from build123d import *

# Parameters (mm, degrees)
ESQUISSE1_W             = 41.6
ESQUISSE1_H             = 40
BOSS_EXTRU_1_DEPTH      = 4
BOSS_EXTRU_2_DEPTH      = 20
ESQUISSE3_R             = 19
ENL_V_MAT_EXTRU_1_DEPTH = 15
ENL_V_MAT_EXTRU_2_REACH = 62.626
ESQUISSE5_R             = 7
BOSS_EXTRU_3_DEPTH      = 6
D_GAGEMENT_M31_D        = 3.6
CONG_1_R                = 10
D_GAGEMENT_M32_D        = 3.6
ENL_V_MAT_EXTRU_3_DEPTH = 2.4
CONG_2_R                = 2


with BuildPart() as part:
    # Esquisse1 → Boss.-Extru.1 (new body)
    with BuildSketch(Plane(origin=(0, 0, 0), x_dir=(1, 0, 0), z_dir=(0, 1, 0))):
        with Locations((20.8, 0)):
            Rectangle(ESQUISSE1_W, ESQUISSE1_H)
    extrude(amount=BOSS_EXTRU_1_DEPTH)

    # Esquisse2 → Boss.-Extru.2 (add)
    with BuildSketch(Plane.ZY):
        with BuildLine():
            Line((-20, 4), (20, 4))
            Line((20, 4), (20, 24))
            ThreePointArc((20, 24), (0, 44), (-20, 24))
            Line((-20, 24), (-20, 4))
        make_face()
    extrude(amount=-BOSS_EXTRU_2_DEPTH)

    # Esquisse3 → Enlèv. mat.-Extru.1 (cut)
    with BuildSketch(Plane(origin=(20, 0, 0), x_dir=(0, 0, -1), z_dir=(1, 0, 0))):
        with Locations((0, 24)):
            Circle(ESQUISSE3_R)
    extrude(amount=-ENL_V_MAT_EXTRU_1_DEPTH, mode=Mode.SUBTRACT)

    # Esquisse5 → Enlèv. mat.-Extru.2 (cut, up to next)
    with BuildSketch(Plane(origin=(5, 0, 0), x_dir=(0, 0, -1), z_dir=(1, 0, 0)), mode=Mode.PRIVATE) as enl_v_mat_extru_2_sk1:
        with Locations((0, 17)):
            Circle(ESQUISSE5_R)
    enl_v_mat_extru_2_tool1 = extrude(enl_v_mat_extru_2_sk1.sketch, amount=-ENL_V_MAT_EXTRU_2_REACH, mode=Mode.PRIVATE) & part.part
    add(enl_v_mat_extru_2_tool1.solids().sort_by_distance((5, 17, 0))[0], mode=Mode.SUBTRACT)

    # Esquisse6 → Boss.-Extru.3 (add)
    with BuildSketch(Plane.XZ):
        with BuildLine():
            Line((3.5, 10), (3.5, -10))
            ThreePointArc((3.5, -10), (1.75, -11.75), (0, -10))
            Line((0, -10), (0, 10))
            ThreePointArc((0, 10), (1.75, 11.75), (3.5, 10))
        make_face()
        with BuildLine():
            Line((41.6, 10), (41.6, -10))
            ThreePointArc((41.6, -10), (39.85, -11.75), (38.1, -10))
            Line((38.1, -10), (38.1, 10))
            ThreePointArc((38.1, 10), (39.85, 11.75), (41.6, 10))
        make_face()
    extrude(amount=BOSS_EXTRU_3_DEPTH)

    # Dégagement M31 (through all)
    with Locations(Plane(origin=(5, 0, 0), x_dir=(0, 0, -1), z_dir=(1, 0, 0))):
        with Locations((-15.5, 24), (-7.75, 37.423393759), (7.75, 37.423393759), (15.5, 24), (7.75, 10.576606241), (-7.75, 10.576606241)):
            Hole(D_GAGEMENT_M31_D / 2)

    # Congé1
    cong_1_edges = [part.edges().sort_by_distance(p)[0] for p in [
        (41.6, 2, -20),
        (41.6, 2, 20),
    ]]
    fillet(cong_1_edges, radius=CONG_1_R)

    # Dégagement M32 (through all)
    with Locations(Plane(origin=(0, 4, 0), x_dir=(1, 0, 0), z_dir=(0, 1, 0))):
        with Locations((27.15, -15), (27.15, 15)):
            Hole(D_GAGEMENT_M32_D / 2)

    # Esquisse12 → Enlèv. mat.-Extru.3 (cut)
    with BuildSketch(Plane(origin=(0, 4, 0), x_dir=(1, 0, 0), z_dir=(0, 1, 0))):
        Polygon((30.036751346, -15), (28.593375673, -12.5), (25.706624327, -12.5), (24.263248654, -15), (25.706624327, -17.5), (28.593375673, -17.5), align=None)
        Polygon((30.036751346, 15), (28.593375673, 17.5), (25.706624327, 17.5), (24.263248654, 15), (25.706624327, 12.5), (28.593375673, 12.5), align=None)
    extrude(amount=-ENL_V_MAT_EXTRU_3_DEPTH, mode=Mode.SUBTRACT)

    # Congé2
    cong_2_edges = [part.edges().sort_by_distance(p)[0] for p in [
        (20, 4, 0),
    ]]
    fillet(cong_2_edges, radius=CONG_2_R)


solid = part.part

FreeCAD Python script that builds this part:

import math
import FreeCAD as App
import Part
import Sketcher
from FreeCAD import Vector
Q = App.Units.Quantity


def edges_at(feature, points):
    """Names of the edges that pass closest to the given points."""
    edges = feature.Shape.Edges
    near = lambda p: min(range(len(edges)), key=lambda i: edges[i].distToShape(Part.Vertex(*p))[0])
    return sorted({f"Edge{near(p) + 1}" for p in points})

doc = App.newDocument("Part")
params = doc.addObject("Spreadsheet::Sheet", "Params")
for row, (alias, value) in enumerate([
    ("sketch1_height", "40 mm"),
    ("sketch1_width", "41.6 mm"),
    ("pad1_length", "4 mm"),
    ("sketch2_radius", "20 mm"),
    ("sketch2_width", "20 mm"),
    ("pad2_length", "20 mm"),
    ("sketch3_diameter", "38 mm"),
    ("pocket1_length", "15 mm"),
    ("sketch4_diameter", "14 mm"),
    ("sketch5_height", "20 mm"),
    ("sketch5_radius", "1.75 mm"),
    ("pad3_length", "6 mm"),
    ("sketch6_diameter", "3.6 mm"),
    ("hole_diameter", "3.6 mm"),
    ("fillet_radius", "10 mm"),
    ("sketch7_diameter", "3.6 mm"),
    ("hole2_diameter", "3.6 mm"),
    ("pocket3_length", "2.4 mm"),
    ("fillet2_radius", "2 mm"),
], start=1):
    params.set(f"A{row}", alias)
    params.set(f"B{row}", "=" + value)
    params.setAlias(f"B{row}", alias)

body = doc.addObject("PartDesign::Body", "Body")

sketch1 = body.newObject("Sketcher::SketchObject", "Sketch")
sketch1.AttachmentSupport = (doc.getObject("XZ_Plane"), [""])
sketch1.MapMode = "FlatFace"
sketch1.addGeometry(Part.LineSegment(Vector(0, -20, 0), Vector(0, 20, 0)), False)
sketch1.addGeometry(Part.LineSegment(Vector(0, 20, 0), Vector(42, 20, 0)), False)
sketch1.addGeometry(Part.LineSegment(Vector(42, 20, 0), Vector(42, -20, 0)), False)
sketch1.addGeometry(Part.LineSegment(Vector(42, -20, 0), Vector(0, -20, 0)), False)
sketch1.addConstraint(Sketcher.Constraint("Coincident", 0, 2, 1, 1))
sketch1.addConstraint(Sketcher.Constraint("Coincident", 1, 2, 2, 1))
sketch1.addConstraint(Sketcher.Constraint("Coincident", 2, 2, 3, 1))
sketch1.addConstraint(Sketcher.Constraint("Coincident", 3, 2, 0, 1))
sketch1.addConstraint(Sketcher.Constraint("Vertical", 0))
sketch1.addConstraint(Sketcher.Constraint("Horizontal", 1))
sketch1.addConstraint(Sketcher.Constraint("Vertical", 2))
sketch1.addConstraint(Sketcher.Constraint("Horizontal", 3))
sketch1.addConstraint(Sketcher.Constraint("Symmetric", 0, 2, 3, 2, -1, 1))
sketch1.addConstraint(Sketcher.Constraint("DistanceY", 0, 1, 0, 2, 40.0))
sketch1.addConstraint(Sketcher.Constraint("DistanceX", 1, 1, 1, 2, 41.6))
sketch1.setExpression("Constraints[9]", "Params.sketch1_height")
sketch1.setExpression("Constraints[10]", "Params.sketch1_width")
pad1 = body.newObject("PartDesign::Pad", "Pad")
pad1.Profile = sketch1
pad1.setExpression("Length", "Params.pad1_length")
pad1.Reversed = True

sketch2 = body.newObject("Sketcher::SketchObject", "Sketch001")
sketch2.AttachmentSupport = (doc.getObject("YZ_Plane"), [""])
sketch2.MapMode = "FlatFace"
sketch2.addGeometry(Part.LineSegment(Vector(4, -20, 0), Vector(4, 20, 0)), False)
sketch2.addGeometry(Part.LineSegment(Vector(4, 20, 0), Vector(24, 20, 0)), False)
sketch2.addGeometry(Part.ArcOfCircle(Part.Circle(Vector(24, 0, 0), Vector(0, 0, 1), 20), math.radians(-90), math.radians(90)), False)
sketch2.addGeometry(Part.LineSegment(Vector(24, -20, 0), Vector(4, -20, 0)), False)
sketch2.addConstraint(Sketcher.Constraint("Coincident", 0, 2, 1, 1))
sketch2.addConstraint(Sketcher.Constraint("Tangent", 1, 2, 2, 2))
sketch2.addConstraint(Sketcher.Constraint("Tangent", 2, 1, 3, 1))
sketch2.addConstraint(Sketcher.Constraint("Coincident", 3, 2, 0, 1))
sketch2.addConstraint(Sketcher.Constraint("Vertical", 0))
sketch2.addConstraint(Sketcher.Constraint("Horizontal", 1))
sketch2.addConstraint(Sketcher.Constraint("Horizontal", 3))
sketch2.addConstraint(Sketcher.Constraint("PointOnObject", 2, 3, -1))
sketch2.addConstraint(Sketcher.Constraint("Radius", 2, 20.0))
sketch2.addConstraint(Sketcher.Constraint("DistanceX", 1, 1, 1, 2, 20.0))
sketch2.addConstraint(Sketcher.Constraint("DistanceX", -1, 1, 2, 3, 24.0))
sketch2.setExpression("Constraints[8]", "Params.sketch2_radius")
sketch2.setExpression("Constraints[9]", "Params.sketch2_width")
pad2 = body.newObject("PartDesign::Pad", "Pad001")
pad2.Profile = sketch2
pad2.setExpression("Length", "Params.pad2_length")

sketch3 = body.newObject("Sketcher::SketchObject", "Sketch002")
sketch3.AttachmentSupport = (doc.getObject("YZ_Plane"), [""])
sketch3.MapMode = "FlatFace"
sketch3.AttachmentOffset = App.Placement(Vector(0, 0, 20), App.Rotation())
sketch3.addGeometry(Part.Circle(Vector(24, 0, 0), Vector(0, 0, 1), 19), False)
sketch3.addConstraint(Sketcher.Constraint("PointOnObject", 0, 3, -1))
sketch3.addConstraint(Sketcher.Constraint("Diameter", 0, 38.0))
sketch3.addConstraint(Sketcher.Constraint("DistanceX", -1, 1, 0, 3, 24.0))
sketch3.setExpression("Constraints[1]", "Params.sketch3_diameter")
pocket1 = body.newObject("PartDesign::Pocket", "Pocket")
pocket1.Profile = sketch3
pocket1.setExpression("Length", "Params.pocket1_length")

sketch4 = body.newObject("Sketcher::SketchObject", "Sketch003")
sketch4.AttachmentSupport = (doc.getObject("YZ_Plane"), [""])
sketch4.MapMode = "FlatFace"
sketch4.AttachmentOffset = App.Placement(Vector(0, 0, 5), App.Rotation())
sketch4.addGeometry(Part.Circle(Vector(17, 0, 0), Vector(0, 0, 1), 7), False)
sketch4.addConstraint(Sketcher.Constraint("PointOnObject", 0, 3, -1))
sketch4.addConstraint(Sketcher.Constraint("Diameter", 0, 14.0))
sketch4.addConstraint(Sketcher.Constraint("DistanceX", -1, 1, 0, 3, 17.0))
sketch4.setExpression("Constraints[1]", "Params.sketch4_diameter")
pocket2 = body.newObject("PartDesign::Pocket", "Pocket001")
pocket2.Profile = sketch4
pocket2.Type = "UpToFirst"

sketch5 = body.newObject("Sketcher::SketchObject", "Sketch004")
sketch5.AttachmentSupport = (doc.getObject("XZ_Plane"), [""])
sketch5.MapMode = "FlatFace"
sketch5.addGeometry(Part.LineSegment(Vector(3.5, -10, 0), Vector(3.5, 10, 0)), False)
sketch5.addGeometry(Part.ArcOfCircle(Part.Circle(Vector(1.8, 10, 0), Vector(0, 0, 1), 1.8), math.radians(0), math.radians(180)), False)
sketch5.addGeometry(Part.LineSegment(Vector(0, 10, 0), Vector(0, -10, 0)), False)
sketch5.addGeometry(Part.ArcOfCircle(Part.Circle(Vector(1.8, -10, 0), Vector(0, 0, 1), 1.8), math.radians(180), math.radians(360)), False)
sketch5.addGeometry(Part.LineSegment(Vector(41.6, -10, 0), Vector(41.6, 10, 0)), False)
sketch5.addGeometry(Part.ArcOfCircle(Part.Circle(Vector(39.9, 10, 0), Vector(0, 0, 1), 1.8), math.radians(0), math.radians(180)), False)
sketch5.addGeometry(Part.LineSegment(Vector(38.1, 10, 0), Vector(38.1, -10, 0)), False)
sketch5.addGeometry(Part.ArcOfCircle(Part.Circle(Vector(39.9, -10, 0), Vector(0, 0, 1), 1.8), math.radians(180), math.radians(360)), False)
sketch5.addConstraint(Sketcher.Constraint("Tangent", 0, 2, 1, 1))
sketch5.addConstraint(Sketcher.Constraint("Tangent", 1, 2, 2, 1))
sketch5.addConstraint(Sketcher.Constraint("Tangent", 2, 2, 3, 1))
sketch5.addConstraint(Sketcher.Constraint("Tangent", 3, 2, 0, 1))
sketch5.addConstraint(Sketcher.Constraint("Tangent", 4, 2, 5, 1))
sketch5.addConstraint(Sketcher.Constraint("Tangent", 5, 2, 6, 1))
sketch5.addConstraint(Sketcher.Constraint("Tangent", 6, 2, 7, 1))
sketch5.addConstraint(Sketcher.Constraint("Tangent", 7, 2, 4, 1))
sketch5.addConstraint(Sketcher.Constraint("Vertical", 0))
sketch5.addConstraint(Sketcher.Constraint("Vertical", 2))
sketch5.addConstraint(Sketcher.Constraint("Vertical", 4))
sketch5.addConstraint(Sketcher.Constraint("Vertical", 6))
sketch5.addConstraint(Sketcher.Constraint("Equal", 3, 5))
sketch5.addConstraint(Sketcher.Constraint("Symmetric", 1, 2, 2, 2, -1, 1))
sketch5.addConstraint(Sketcher.Constraint("Horizontal", 1, 3, 5, 3))
sketch5.addConstraint(Sketcher.Constraint("Horizontal", 3, 3, 7, 3))
sketch5.addConstraint(Sketcher.Constraint("DistanceY", 0, 1, 0, 2, 20.0))
sketch5.addConstraint(Sketcher.Constraint("Radius", 1, 1.75))
sketch5.addConstraint(Sketcher.Constraint("DistanceX", -1, 1, 4, 2, 41.6))
sketch5.setExpression("Constraints[16]", "Params.sketch5_height")
sketch5.setExpression("Constraints[17]", "Params.sketch5_radius")
pad3 = body.newObject("PartDesign::Pad", "Pad002")
pad3.Profile = sketch5
pad3.setExpression("Length", "Params.pad3_length")

sketch6 = body.newObject("Sketcher::SketchObject", "Sketch005")
sketch6.AttachmentSupport = (doc.getObject("YZ_Plane"), [""])
sketch6.MapMode = "FlatFace"
sketch6.AttachmentOffset = App.Placement(Vector(0, 0, 5), App.Rotation())
sketch6.addGeometry(Part.Circle(Vector(24, 15.5, 0), Vector(0, 0, 1), 1.8), False)
sketch6.addGeometry(Part.Circle(Vector(37.4, 7.8, 0), Vector(0, 0, 1), 1.8), False)
sketch6.addGeometry(Part.Circle(Vector(37.4, -7.8, 0), Vector(0, 0, 1), 1.8), False)
sketch6.addGeometry(Part.Circle(Vector(24, -15.5, 0), Vector(0, 0, 1), 1.8), False)
sketch6.addGeometry(Part.Circle(Vector(10.6, -7.8, 0), Vector(0, 0, 1), 1.8), False)
sketch6.addGeometry(Part.Circle(Vector(10.6, 7.8, 0), Vector(0, 0, 1), 1.8), False)
sketch6.addConstraint(Sketcher.Constraint("Equal", 0, 1))
sketch6.addConstraint(Sketcher.Constraint("Equal", 1, 2))
sketch6.addConstraint(Sketcher.Constraint("Equal", 2, 3))
sketch6.addConstraint(Sketcher.Constraint("Equal", 3, 4))
sketch6.addConstraint(Sketcher.Constraint("Equal", 4, 5))
sketch6.addConstraint(Sketcher.Constraint("Symmetric", 1, 3, 2, 3, -1))
sketch6.addConstraint(Sketcher.Constraint("Symmetric", 0, 3, 3, 3, -1))
sketch6.addConstraint(Sketcher.Constraint("Symmetric", 4, 3, 5, 3, -1))
sketch6.addConstraint(Sketcher.Constraint("Horizontal", 2, 3, 4, 3))
sketch6.addConstraint(Sketcher.Constraint("Diameter", 0, 3.6))
sketch6.addConstraint(Sketcher.Constraint("DistanceX", -1, 1, 0, 3, 24.0))
sketch6.addConstraint(Sketcher.Constraint("DistanceY", 3, 3, 0, 3, 31.0))
sketch6.addConstraint(Sketcher.Constraint("DistanceY", 2, 3, 1, 3, 15.5))
sketch6.addConstraint(Sketcher.Constraint("DistanceX", -1, 1, 1, 3, 37.423394))
sketch6.addConstraint(Sketcher.Constraint("DistanceX", -1, 1, 4, 3, 10.576606))
sketch6.setExpression("Constraints[9]", "Params.sketch6_diameter")
doc.recompute()
hole = body.newObject("PartDesign::Hole", "Hole")
hole.Profile = sketch6
hole.ThreadType = "None"
hole.setExpression("Diameter", "Params.hole_diameter")
hole.DepthType = "ThroughAll"
doc.recompute()

fillet = body.newObject("PartDesign::Fillet", "Fillet")
fillet.Base = (hole, edges_at(hole, [(41.6, 2, -20), (41.6, 2, 20)]))
fillet.setExpression("Radius", "Params.fillet_radius")

sketch7 = body.newObject("Sketcher::SketchObject", "Sketch006")
sketch7.AttachmentSupport = (doc.getObject("XZ_Plane"), [""])
sketch7.MapMode = "FlatFace"
sketch7.AttachmentOffset = App.Placement(Vector(0, 0, -4), App.Rotation())
sketch7.addGeometry(Part.Circle(Vector(27.1, 15, 0), Vector(0, 0, 1), 1.8), False)
sketch7.addGeometry(Part.Circle(Vector(27.1, -15, 0), Vector(0, 0, 1), 1.8), False)
sketch7.addConstraint(Sketcher.Constraint("Equal", 0, 1))
sketch7.addConstraint(Sketcher.Constraint("Symmetric", 0, 3, 1, 3, -1))
sketch7.addConstraint(Sketcher.Constraint("Diameter", 0, 3.6))
sketch7.addConstraint(Sketcher.Constraint("DistanceY", -1, 1, 0, 3, 15.0))
sketch7.addConstraint(Sketcher.Constraint("DistanceX", -1, 1, 0, 3, 27.15))
sketch7.setExpression("Constraints[2]", "Params.sketch7_diameter")
doc.recompute()
hole2 = body.newObject("PartDesign::Hole", "Hole001")
hole2.Profile = sketch7
hole2.ThreadType = "None"
hole2.setExpression("Diameter", "Params.hole2_diameter")
hole2.DepthType = "ThroughAll"
hole2.Reversed = True

sketch8 = body.newObject("Sketcher::SketchObject", "Sketch007")
sketch8.AttachmentSupport = (doc.getObject("XZ_Plane"), [""])
sketch8.MapMode = "FlatFace"
sketch8.AttachmentOffset = App.Placement(Vector(0, 0, -4), App.Rotation())
sketch8.addGeometry(Part.LineSegment(Vector(30, 15, 0), Vector(28.6, 12.5, 0)), False)
sketch8.addGeometry(Part.LineSegment(Vector(28.6, 12.5, 0), Vector(25.7, 12.5, 0)), False)
sketch8.addGeometry(Part.LineSegment(Vector(25.7, 12.5, 0), Vector(24.3, 15, 0)), False)
sketch8.addGeometry(Part.LineSegment(Vector(24.3, 15, 0), Vector(25.7, 17.5, 0)), False)
sketch8.addGeometry(Part.LineSegment(Vector(25.7, 17.5, 0), Vector(28.6, 17.5, 0)), False)
sketch8.addGeometry(Part.LineSegment(Vector(28.6, 17.5, 0), Vector(30, 15, 0)), False)
sketch8.addGeometry(Part.LineSegment(Vector(30, -15, 0), Vector(28.6, -17.5, 0)), False)
sketch8.addGeometry(Part.LineSegment(Vector(28.6, -17.5, 0), Vector(25.7, -17.5, 0)), False)
sketch8.addGeometry(Part.LineSegment(Vector(25.7, -17.5, 0), Vector(24.3, -15, 0)), False)
sketch8.addGeometry(Part.LineSegment(Vector(24.3, -15, 0), Vector(25.7, -12.5, 0)), False)
sketch8.addGeometry(Part.LineSegment(Vector(25.7, -12.5, 0), Vector(28.6, -12.5, 0)), False)
sketch8.addGeometry(Part.LineSegment(Vector(28.6, -12.5, 0), Vector(30, -15, 0)), False)
sketch8.addConstraint(Sketcher.Constraint("Coincident", 0, 2, 1, 1))
sketch8.addConstraint(Sketcher.Constraint("Coincident", 1, 2, 2, 1))
sketch8.addConstraint(Sketcher.Constraint("Coincident", 2, 2, 3, 1))
sketch8.addConstraint(Sketcher.Constraint("Coincident", 3, 2, 4, 1))
sketch8.addConstraint(Sketcher.Constraint("Coincident", 4, 2, 5, 1))
sketch8.addConstraint(Sketcher.Constraint("Coincident", 5, 2, 0, 1))
sketch8.addConstraint(Sketcher.Constraint("Coincident", 6, 2, 7, 1))
sketch8.addConstraint(Sketcher.Constraint("Coincident", 7, 2, 8, 1))
sketch8.addConstraint(Sketcher.Constraint("Coincident", 8, 2, 9, 1))
sketch8.addConstraint(Sketcher.Constraint("Coincident", 9, 2, 10, 1))
sketch8.addConstraint(Sketcher.Constraint("Coincident", 10, 2, 11, 1))
sketch8.addConstraint(Sketcher.Constraint("Coincident", 11, 2, 6, 1))
sketch8.addConstraint(Sketcher.Constraint("Horizontal", 1))
sketch8.addConstraint(Sketcher.Constraint("Horizontal", 4))
sketch8.addConstraint(Sketcher.Constraint("Horizontal", 7))
sketch8.addConstraint(Sketcher.Constraint("Horizontal", 10))
sketch8.addConstraint(Sketcher.Constraint("Symmetric", 4, 2, 6, 2, -1))
sketch8.addConstraint(Sketcher.Constraint("Symmetric", 2, 2, 8, 2, -1))
sketch8.addConstraint(Sketcher.Constraint("Symmetric", 1, 2, 9, 2, -1))
sketch8.addConstraint(Sketcher.Constraint("Symmetric", 5, 2, 11, 2, -1))
sketch8.addConstraint(Sketcher.Constraint("Parallel", 0, 3))
sketch8.addConstraint(Sketcher.Constraint("Parallel", 2, 5))
sketch8.addConstraint(Sketcher.Constraint("Parallel", 3, 6))
sketch8.addConstraint(Sketcher.Constraint("Parallel", 5, 8))
sketch8.addConstraint(Sketcher.Constraint("Parallel", 8, 11))
sketch8.addConstraint(Sketcher.Constraint("Horizontal", 2, 2, 5, 2))
sketch8.addConstraint(Sketcher.Constraint("Vertical", 1, 2, 3, 2))
sketch8.addConstraint(Sketcher.Constraint("Angle", 0, Q("-120 deg")))
sketch8.addConstraint(Sketcher.Constraint("DistanceY", -1, 1, 2, 2, 15.0))
sketch8.addConstraint(Sketcher.Constraint("DistanceY", 1, 2, 3, 2, 5.0))
sketch8.addConstraint(Sketcher.Constraint("DistanceX", 1, 2, 1, 1, 2.886751))
sketch8.addConstraint(Sketcher.Constraint("DistanceX", -1, 1, 2, 2, 24.263249))
pocket3 = body.newObject("PartDesign::Pocket", "Pocket002")
pocket3.Profile = sketch8
pocket3.setExpression("Length", "Params.pocket3_length")
pocket3.Reversed = True
doc.recompute()

fillet2 = body.newObject("PartDesign::Fillet", "Fillet001")
fillet2.Base = (pocket3, edges_at(pocket3, [(20, 4, 0)]))
fillet2.setExpression("Radius", "Params.fillet2_radius")

doc.recompute()
